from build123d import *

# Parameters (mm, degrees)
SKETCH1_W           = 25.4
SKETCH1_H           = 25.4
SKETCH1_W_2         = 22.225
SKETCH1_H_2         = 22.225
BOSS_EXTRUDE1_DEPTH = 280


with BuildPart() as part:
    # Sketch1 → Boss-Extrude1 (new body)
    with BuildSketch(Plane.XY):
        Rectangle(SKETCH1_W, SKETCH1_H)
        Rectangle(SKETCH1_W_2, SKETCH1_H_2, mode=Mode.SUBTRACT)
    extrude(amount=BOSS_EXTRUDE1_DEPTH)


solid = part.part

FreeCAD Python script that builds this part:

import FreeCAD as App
import Part
import Sketcher
Q = App.Units.Quantity


def add_polygon(sketch, points):
    """Adds a closed chain of lines whose ends are joined by coincident constraints."""
    first, n = sketch.GeometryCount, len(points)
    for a, b in zip(points, points[1:] + points[:1]):
        sketch.addGeometry(Part.LineSegment(App.Vector(*a, 0), App.Vector(*b, 0)), False)
    for i in range(n):
        sketch.addConstraint(Sketcher.Constraint("Coincident", first + i, 2, first + (i + 1) % n, 1))

doc = App.newDocument("Part")
params = doc.addObject("Spreadsheet::Sheet", "Params")
for row, (alias, value) in enumerate([
    ("sketch1_width", "1 in"),
    ("sketch1_width2", "0.875 in"),
    ("pad1_length", "280 mm"),
], start=1):
    params.set(f"A{row}", alias)
    params.set(f"B{row}", "=" + value)
    params.setAlias(f"B{row}", alias)

body = doc.addObject("PartDesign::Body", "Body")

# Sketch on XY plane
sketch1 = body.newObject("Sketcher::SketchObject", "Sketch")
sketch1.AttachmentSupport = (doc.getObject("XY_Plane"), [""])
sketch1.MapMode = "FlatFace"
add_polygon(sketch1, [(-13, 13), (-13, -13), (13, -13), (13, 13)])  # lines 0-3
add_polygon(sketch1, [(11, -11), (-11, -11), (-11, 11), (11, 11)])  # lines 4-7
sketch1.addConstraint([
    Sketcher.Constraint("Vertical", 0),
    Sketcher.Constraint("Horizontal", 1),
    Sketcher.Constraint("Vertical", 2),
    Sketcher.Constraint("Horizontal", 3),
    Sketcher.Constraint("Horizontal", 4),
    Sketcher.Constraint("Vertical", 5),
    Sketcher.Constraint("Horizontal", 6),
    Sketcher.Constraint("Vertical", 7),
    Sketcher.Constraint("Symmetric", 0, 2, 2, 2, -1, 1),
    Sketcher.Constraint("Symmetric", 4, 2, 6, 2, -1, 1),
    Sketcher.Constraint("Equal", 3, 0),
    Sketcher.Constraint("Equal", 6, 5),
    Sketcher.Constraint("DistanceX", 1, 1, 1, 2, Q("1 in")),
    Sketcher.Constraint("DistanceX", 4, 2, 4, 1, Q("0.875 in")),
])
sketch1.setExpression("Constraints[20]", "Params.sketch1_width")
sketch1.setExpression("Constraints[21]", "Params.sketch1_width2")
pad1 = body.newObject("PartDesign::Pad", "Pad")
pad1.Profile = sketch1
pad1.setExpression("Length", "Params.pad1_length")

doc.recompute()
